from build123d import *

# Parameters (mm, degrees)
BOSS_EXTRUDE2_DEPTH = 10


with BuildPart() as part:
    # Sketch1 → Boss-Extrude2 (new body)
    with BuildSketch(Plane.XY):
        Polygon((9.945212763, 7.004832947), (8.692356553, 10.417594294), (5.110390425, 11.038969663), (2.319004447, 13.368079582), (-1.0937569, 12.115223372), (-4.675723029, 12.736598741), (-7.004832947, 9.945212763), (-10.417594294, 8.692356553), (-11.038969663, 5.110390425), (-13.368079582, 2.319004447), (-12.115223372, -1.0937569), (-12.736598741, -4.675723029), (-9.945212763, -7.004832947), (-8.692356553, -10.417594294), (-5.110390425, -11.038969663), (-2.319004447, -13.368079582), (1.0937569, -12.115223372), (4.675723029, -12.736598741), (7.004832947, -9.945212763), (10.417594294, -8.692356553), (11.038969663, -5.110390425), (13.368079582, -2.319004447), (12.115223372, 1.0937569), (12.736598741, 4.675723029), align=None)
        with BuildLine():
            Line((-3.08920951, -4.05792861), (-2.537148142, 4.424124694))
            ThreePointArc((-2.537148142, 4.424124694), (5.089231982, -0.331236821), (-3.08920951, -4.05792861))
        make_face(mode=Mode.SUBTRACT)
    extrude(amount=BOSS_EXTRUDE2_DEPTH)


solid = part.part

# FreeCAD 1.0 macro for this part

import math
import FreeCAD as App
import Part
import Sketcher

doc = App.newDocument("Part")
body = doc.addObject("PartDesign::Body", "Body")

# Sketch on XY plane
sketch1 = body.newObject("Sketcher::SketchObject", "Sketch")
sketch1.AttachmentSupport = (doc.getObject("XY_Plane"), [""])
sketch1.MapMode = "FlatFace"
sketch1.addGeometry([
    Part.LineSegment(App.Vector(9.945213, 7.004833, 0), App.Vector(8.692357, 10.417594, 0)),  # 0
    Part.LineSegment(App.Vector(8.692357, 10.417594, 0), App.Vector(5.11039, 11.03897, 0)),  # 1
    Part.LineSegment(App.Vector(5.11039, 11.03897, 0), App.Vector(2.319004, 13.36808, 0)),  # 2
    Part.LineSegment(App.Vector(2.319004, 13.36808, 0), App.Vector(-1.093757, 12.115223, 0)),  # 3
    Part.LineSegment(App.Vector(-1.093757, 12.115223, 0), App.Vector(-4.675723, 12.736599, 0)),  # 4
    Part.LineSegment(App.Vector(-4.675723, 12.736599, 0), App.Vector(-7.004833, 9.945213, 0)),  # 5
    Part.LineSegment(App.Vector(-7.004833, 9.945213, 0), App.Vector(-10.417594, 8.692357, 0)),  # 6
    Part.LineSegment(App.Vector(-10.417594, 8.692357, 0), App.Vector(-11.03897, 5.11039, 0)),  # 7
    Part.LineSegment(App.Vector(-11.03897, 5.11039, 0), App.Vector(-13.36808, 2.319004, 0)),  # 8
    Part.LineSegment(App.Vector(-13.36808, 2.319004, 0), App.Vector(-12.115223, -1.093757, 0)),  # 9
    Part.LineSegment(App.Vector(-12.115223, -1.093757, 0), App.Vector(-12.736599, -4.675723, 0)),  # 10
    Part.LineSegment(App.Vector(-12.736599, -4.675723, 0), App.Vector(-9.945213, -7.004833, 0)),  # 11
    Part.LineSegment(App.Vector(-9.945213, -7.004833, 0), App.Vector(-8.692357, -10.417594, 0)),  # 12
    Part.LineSegment(App.Vector(-8.692357, -10.417594, 0), App.Vector(-5.11039, -11.03897, 0)),  # 13
    Part.LineSegment(App.Vector(-5.11039, -11.03897, 0), App.Vector(-2.319004, -13.36808, 0)),  # 14
    Part.LineSegment(App.Vector(-2.319004, -13.36808, 0), App.Vector(1.093757, -12.115223, 0)),  # 15
    Part.LineSegment(App.Vector(1.093757, -12.115223, 0), App.Vector(4.675723, -12.736599, 0)),  # 16
    Part.LineSegment(App.Vector(4.675723, -12.736599, 0), App.Vector(7.004833, -9.945213, 0)),  # 17
    Part.LineSegment(App.Vector(7.004833, -9.945213, 0), App.Vector(10.417594, -8.692357, 0)),  # 18
    Part.LineSegment(App.Vector(10.417594, -8.692357, 0), App.Vector(11.03897, -5.11039, 0)),  # 19
    Part.LineSegment(App.Vector(11.03897, -5.11039, 0), App.Vector(13.36808, -2.319004, 0)),  # 20
    Part.LineSegment(App.Vector(13.36808, -2.319004, 0), App.Vector(12.115223, 1.093757, 0)),  # 21
    Part.LineSegment(App.Vector(12.115223, 1.093757, 0), App.Vector(12.736599, 4.675723, 0)),  # 22
    Part.LineSegment(App.Vector(12.736599, 4.675723, 0), App.Vector(9.945213, 7.004833, 0)),  # 23
    Part.ArcOfCircle(Part.Circle(App.Vector(0, 0, 0), App.Vector(0, 0, 1), 5.1), math.radians(-127.2812), math.radians(119.83342)),  # 24
    Part.LineSegment(App.Vector(-3.08921, -4.057929, 0), App.Vector(-2.537148, 4.424125, 0)),  # 25
], False)
sketch1.addConstraint([
    Sketcher.Constraint("Coincident", 0, 2, 1, 1),
    Sketcher.Constraint("Coincident", 1, 2, 2, 1),
    Sketcher.Constraint("Coincident", 2, 2, 3, 1),
    Sketcher.Constraint("Coincident", 3, 2, 4, 1),
    Sketcher.Constraint("Coincident", 4, 2, 5, 1),
    Sketcher.Constraint("Coincident", 5, 2, 6, 1),
    Sketcher.Constraint("Coincident", 6, 2, 7, 1),
    Sketcher.Constraint("Coincident", 7, 2, 8, 1),
    Sketcher.Constraint("Coincident", 8, 2, 9, 1),
    Sketcher.Constraint("Coincident", 9, 2, 10, 1),
    Sketcher.Constraint("Coincident", 10, 2, 11, 1),
    Sketcher.Constraint("Coincident", 11, 2, 12, 1),
    Sketcher.Constraint("Coincident", 12, 2, 13, 1),
    Sketcher.Constraint("Coincident", 13, 2, 14, 1),
    Sketcher.Constraint("Coincident", 14, 2, 15, 1),
    Sketcher.Constraint("Coincident", 15, 2, 16, 1),
    Sketcher.Constraint("Coincident", 16, 2, 17, 1),
    Sketcher.Constraint("Coincident", 17, 2, 18, 1),
    Sketcher.Constraint("Coincident", 18, 2, 19, 1),
    Sketcher.Constraint("Coincident", 19, 2, 20, 1),
    Sketcher.Constraint("Coincident", 20, 2, 21, 1),
    Sketcher.Constraint("Coincident", 21, 2, 22, 1),
    Sketcher.Constraint("Coincident", 22, 2, 23, 1),
    Sketcher.Constraint("Coincident", 23, 2, 0, 1),
    Sketcher.Constraint("Coincident", 24, 1, 25, 1),
    Sketcher.Constraint("Coincident", 25, 2, 24, 2),
    Sketcher.Constraint("Coincident", 24, 3, -1, 1),
    Sketcher.Constraint("Symmetric", 0, 2, 12, 2, -1, 1),
    Sketcher.Constraint("Symmetric", 1, 2, 13, 2, -1, 1),
    Sketcher.Constraint("Symmetric", 2, 2, 14, 2, -1, 1),
    Sketcher.Constraint("Symmetric", 3, 2, 15, 2, -1, 1),
    Sketcher.Constraint("Symmetric", 4, 2, 16, 2, -1, 1),
    Sketcher.Constraint("Symmetric", 5, 2, 17, 2, -1, 1),
    Sketcher.Constraint("Symmetric", 6, 2, 18, 2, -1, 1),
    Sketcher.Constraint("Symmetric", 7, 2, 19, 2, -1, 1),
    Sketcher.Constraint("Symmetric", 8, 2, 20, 2, -1, 1),
    Sketcher.Constraint("Symmetric", 9, 2, 21, 2, -1, 1),
    Sketcher.Constraint("Symmetric", 10, 2, 22, 2, -1, 1),
    Sketcher.Constraint("Symmetric", 11, 2, 23, 2, -1, 1),
    Sketcher.Constraint("Perpendicular", 0, 3),
    Sketcher.Constraint("Parallel", 1, 4),
    Sketcher.Constraint("Perpendicular", 2, 5),
    Sketcher.Constraint("Parallel", 3, 6),
    Sketcher.Constraint("Perpendicular", 4, 7),
    Sketcher.Constraint("Parallel", 5, 8),
    Sketcher.Constraint("Perpendicular", 6, 9),
    Sketcher.Constraint("Parallel", 7, 10),
    Sketcher.Constraint("Perpendicular", 8, 11),
    Sketcher.Constraint("Equal", 0, 1),
    Sketcher.Constraint("Equal", 1, 2),
    Sketcher.Constraint("Equal", 2, 3),
    Sketcher.Constraint("Equal", 3, 4),
    Sketcher.Constraint("Equal", 4, 5),
    Sketcher.Constraint("Equal", 5, 6),
    Sketcher.Constraint("Equal", 6, 7),
    Sketcher.Constraint("Equal", 7, 8),
    Sketcher.Constraint("Equal", 8, 9),
    Sketcher.Constraint("Equal", 9, 10),
    Sketcher.Constraint("Equal", 10, 11),
    Sketcher.Constraint("Radius", 24, 5.1),
    Sketcher.Constraint("Distance", 25, 8.5),
    Sketcher.Constraint("DistanceY", -1, 1, 4, 2, 12.736599),
    Sketcher.Constraint("DistanceX", 6, 2, 2, 2, 12.736599),
    Sketcher.Constraint("DistanceY", 25, 2, 3, 2, 7.691099),
    Sketcher.Constraint("DistanceX", -1, 1, 1, 2, 5.11039),
    Sketcher.Constraint("DistanceY", -1, 1, 1, 2, 11.03897),
])
pad1 = body.newObject("PartDesign::Pad", "Pad")
pad1.Profile = sketch1
pad1.Length = 10

doc.recompute()
